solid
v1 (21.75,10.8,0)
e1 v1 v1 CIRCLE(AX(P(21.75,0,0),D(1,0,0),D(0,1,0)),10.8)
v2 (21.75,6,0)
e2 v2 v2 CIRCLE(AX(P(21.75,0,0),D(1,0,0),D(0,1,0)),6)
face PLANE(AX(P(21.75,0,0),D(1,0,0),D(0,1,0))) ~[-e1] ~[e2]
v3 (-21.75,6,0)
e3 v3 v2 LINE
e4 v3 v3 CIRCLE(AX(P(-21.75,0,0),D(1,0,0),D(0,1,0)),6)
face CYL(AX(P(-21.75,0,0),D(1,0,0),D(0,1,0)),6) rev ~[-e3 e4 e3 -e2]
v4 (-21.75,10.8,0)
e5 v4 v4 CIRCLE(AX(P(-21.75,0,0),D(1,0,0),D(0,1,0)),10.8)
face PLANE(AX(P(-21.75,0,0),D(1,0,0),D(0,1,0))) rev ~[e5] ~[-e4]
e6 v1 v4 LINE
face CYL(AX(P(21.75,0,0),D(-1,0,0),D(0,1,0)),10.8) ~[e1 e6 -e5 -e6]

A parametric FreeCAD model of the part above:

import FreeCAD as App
import Part
import Sketcher
from FreeCAD import Vector
Q = App.Units.Quantity


def add_polygon(sketch, points):
    """Adds a closed chain of lines whose ends are joined by coincident constraints."""
    first, n = sketch.GeometryCount, len(points)
    for a, b in zip(points, points[1:] + points[:1]):
        sketch.addGeometry(Part.LineSegment(App.Vector(*a, 0), App.Vector(*b, 0)), False)
    for i in range(n):
        sketch.addConstraint(Sketcher.Constraint("Coincident", first + i, 2, first + (i + 1) % n, 1))

doc = App.newDocument("Part")
body = doc.addObject("PartDesign::Body", "Body")

# Sketch on XY plane
sketch1 = doc.addObject("Sketcher::SketchObject", "Sketch")
body.addObject(sketch1)
sketch1.AttachmentSupport = (doc.XY_Plane, [""])
sketch1.MapMode = "FlatFace"
add_polygon(sketch1, [(-21.8, 10.8), (-21.8, 6), (21.8, 6), (21.8, 10.8)])  # lines 0-3
sketch1.addConstraint(Sketcher.Constraint("Vertical", 0))
sketch1.addConstraint(Sketcher.Constraint("Horizontal", 1))
sketch1.addConstraint(Sketcher.Constraint("Vertical", 2))
sketch1.addConstraint(Sketcher.Constraint("Horizontal", 3))
sketch1.addConstraint(Sketcher.Constraint("DistanceX", 1, 1, 1, 2, Q("43.5 mm")))
sketch1.addConstraint(Sketcher.Constraint("DistanceY", 0, 2, 0, 1, Q("4.8 mm")))
sketch1.addConstraint(Sketcher.Constraint("DistanceY", -1, 1, 0, 2, Q("6 mm")))
sketch1.addConstraint(Sketcher.Constraint("DistanceX", 0, 2, -1, 1, Q("21.75 mm")))
revolution = doc.addObject("PartDesign::Revolution", "Revolution")
body.addObject(revolution)
revolution.Profile = sketch1
revolution.ReferenceAxis = (sketch1, ["H_Axis"])
revolution.Angle = 360

doc.recompute()
